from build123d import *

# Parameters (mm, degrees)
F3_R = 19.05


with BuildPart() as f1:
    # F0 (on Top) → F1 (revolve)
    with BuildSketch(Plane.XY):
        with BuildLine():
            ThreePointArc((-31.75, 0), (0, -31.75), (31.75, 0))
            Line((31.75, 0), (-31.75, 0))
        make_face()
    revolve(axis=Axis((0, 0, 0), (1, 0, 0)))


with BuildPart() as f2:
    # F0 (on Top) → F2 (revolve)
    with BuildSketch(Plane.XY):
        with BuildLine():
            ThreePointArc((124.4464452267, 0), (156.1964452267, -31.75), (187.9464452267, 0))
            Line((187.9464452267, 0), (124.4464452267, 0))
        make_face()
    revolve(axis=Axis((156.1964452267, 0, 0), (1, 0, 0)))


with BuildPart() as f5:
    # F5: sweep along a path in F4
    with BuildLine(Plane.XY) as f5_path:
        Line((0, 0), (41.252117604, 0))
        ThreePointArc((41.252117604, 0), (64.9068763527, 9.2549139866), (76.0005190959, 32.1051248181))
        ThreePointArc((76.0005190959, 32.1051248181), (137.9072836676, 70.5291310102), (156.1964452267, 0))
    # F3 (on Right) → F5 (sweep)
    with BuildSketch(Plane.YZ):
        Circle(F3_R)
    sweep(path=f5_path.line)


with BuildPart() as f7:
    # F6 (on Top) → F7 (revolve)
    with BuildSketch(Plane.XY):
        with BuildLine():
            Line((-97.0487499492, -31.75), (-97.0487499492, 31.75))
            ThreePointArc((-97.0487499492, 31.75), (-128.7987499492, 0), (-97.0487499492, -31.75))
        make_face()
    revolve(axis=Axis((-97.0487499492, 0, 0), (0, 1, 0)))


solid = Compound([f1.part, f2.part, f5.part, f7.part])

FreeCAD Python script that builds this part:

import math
import FreeCAD as App
import Part
import Sketcher
Q = App.Units.Quantity

doc = App.newDocument("Part")
body = doc.addObject("PartDesign::Body", "Body")

sketch1 = body.newObject("Sketcher::SketchObject", "Sketch")
sketch1.AttachmentSupport = (doc.getObject("XY_Plane"), [""])
sketch1.MapMode = "FlatFace"
sketch1.addGeometry([
    Part.ArcOfCircle(Part.Circle(App.Vector(0, 0, 0), App.Vector(0, 0, 1), 32), math.radians(180), math.radians(360)),
    Part.LineSegment(App.Vector(32, 0, 0), App.Vector(-32, 0, 0)),
], False)
sketch1.addConstraint([
    Sketcher.Constraint("Coincident", 0, 1, 1, 2),
    Sketcher.Constraint("Coincident", 1, 1, 0, 2),
    Sketcher.Constraint("Horizontal", 1),
    Sketcher.Constraint("Coincident", 0, 3, -1, 1),
    Sketcher.Constraint("PointOnObject", 0, 1, -1),
    Sketcher.Constraint("Radius", 0, Q("1.25 in")),
])
revolution = body.newObject("PartDesign::Revolution", "Revolution")
revolution.Profile = sketch1
revolution.ReferenceAxis = (sketch1, ["H_Axis"])
revolution.Angle = 360
body2 = doc.addObject("PartDesign::Body", "Body001")

sketch2 = body2.newObject("Sketcher::SketchObject", "Sketch001")
sketch2.AttachmentSupport = (doc.getObject("XY_Plane001"), [""])
sketch2.MapMode = "FlatFace"
sketch2.addGeometry([
    Part.ArcOfCircle(Part.Circle(App.Vector(156, 0, 0), App.Vector(0, 0, 1), 32), math.radians(180), math.radians(360)),
    Part.LineSegment(App.Vector(188, 0, 0), App.Vector(124, 0, 0)),
], False)
sketch2.addConstraint([
    Sketcher.Constraint("Coincident", 0, 1, 1, 2),
    Sketcher.Constraint("Coincident", 1, 1, 0, 2),
    Sketcher.Constraint("Horizontal", 1),
    Sketcher.Constraint("PointOnObject", 0, 3, -1),
    Sketcher.Constraint("PointOnObject", 0, 1, -1),
    Sketcher.Constraint("Radius", 0, Q("1.25 in")),
    Sketcher.Constraint("DistanceX", -1, 1, 0, 3, Q("156.196445 mm")),
])
revolution2 = body2.newObject("PartDesign::Revolution", "Revolution001")
revolution2.Profile = sketch2
revolution2.ReferenceAxis = (sketch2, ["H_Axis"])
revolution2.Angle = 360
body3 = doc.addObject("PartDesign::Body", "Body002")

sketch3 = body3.newObject("Sketcher::SketchObject", "Sketch002")
sketch3.AttachmentSupport = (doc.getObject("YZ_Plane002"), [""])
sketch3.MapMode = "FlatFace"
sketch3.addGeometry(Part.Circle(App.Vector(0, 0, 0), App.Vector(0, 0, 1), 19), False)
sketch3.addConstraint([
    Sketcher.Constraint("Coincident", 0, 3, -1, 1),
    Sketcher.Constraint("Diameter", 0, Q("1.5 in")),
])

sketch4 = body3.newObject("Sketcher::SketchObject", "Sketch003")
sketch4.AttachmentSupport = (doc.getObject("XY_Plane002"), [""])
sketch4.MapMode = "FlatFace"
sketch4.addGeometry([
    Part.LineSegment(App.Vector(0, 0, 0), App.Vector(41, 0, 0)),
    Part.ArcOfCircle(Part.Circle(App.Vector(41, 35, 0), App.Vector(0, 0, 1), 35), math.radians(-90), math.radians(-5)),
    Part.ArcOfCircle(Part.Circle(App.Vector(121, 29, 0), App.Vector(0, 0, 1), 45), math.radians(-39), math.radians(175)),
], False)
sketch4.addConstraint([
    Sketcher.Constraint("Tangent", 0, 2, 1, 1),
    Sketcher.Constraint("Tangent", 1, 2, 2, 2),
    Sketcher.Constraint("Horizontal", 0),
    Sketcher.Constraint("Coincident", 0, 1, -1, 1),
    Sketcher.Constraint("PointOnObject", 2, 1, -1),
    Sketcher.Constraint("Radius", 2, Q("45.23576 mm")),
    Sketcher.Constraint("Radius", 1, Q("34.857215 mm")),
    Sketcher.Constraint("DistanceY", 2, 3, 1, 3, Q("6.323599 mm")),
    Sketcher.Constraint("DistanceX", 0, 1, 0, 2, Q("41.252118 mm")),
])
doc.recompute()

additivepipe = body3.newObject("PartDesign::AdditivePipe", "AdditivePipe")
additivepipe.Profile = sketch3
additivepipe.Spine = (sketch4, ["Edge1", "Edge2", "Edge3"])
body4 = doc.addObject("PartDesign::Body", "Body003")

sketch5 = body4.newObject("Sketcher::SketchObject", "Sketch004")
sketch5.AttachmentSupport = (doc.getObject("XY_Plane003"), [""])
sketch5.MapMode = "FlatFace"
sketch5.addGeometry([
    Part.LineSegment(App.Vector(-97, -32, 0), App.Vector(-97, 32, 0)),
    Part.ArcOfCircle(Part.Circle(App.Vector(-97, 0, 0), App.Vector(0, 0, 1), 32), math.radians(90), math.radians(270)),
], False)
sketch5.addGeometry(Part.LineSegment(App.Vector(-97, -32, 0), App.Vector(-97, 32, 0)), True)
sketch5.addConstraint([
    Sketcher.Constraint("Coincident", 0, 1, 1, 2),
    Sketcher.Constraint("Coincident", 1, 1, 0, 2),
    Sketcher.Constraint("Vertical", 0),
    Sketcher.Constraint("Vertical", 2),
    Sketcher.Constraint("Coincident", 2, 1, 0, 1),
    Sketcher.Constraint("PointOnObject", 1, 3, -1),
    Sketcher.Constraint("Vertical", 1, 3, 0, 1),
    Sketcher.Constraint("Equal", 0, 2),
    Sketcher.Constraint("Radius", 1, Q("1.25 in")),
    Sketcher.Constraint("DistanceX", 1, 3, -1, 1, Q("97.04875 mm")),
])
revolution3 = body4.newObject("PartDesign::Revolution", "Revolution002")
revolution3.Profile = sketch5
revolution3.ReferenceAxis = (sketch5, ["Axis0"])
revolution3.Angle = 360

doc.recompute()
